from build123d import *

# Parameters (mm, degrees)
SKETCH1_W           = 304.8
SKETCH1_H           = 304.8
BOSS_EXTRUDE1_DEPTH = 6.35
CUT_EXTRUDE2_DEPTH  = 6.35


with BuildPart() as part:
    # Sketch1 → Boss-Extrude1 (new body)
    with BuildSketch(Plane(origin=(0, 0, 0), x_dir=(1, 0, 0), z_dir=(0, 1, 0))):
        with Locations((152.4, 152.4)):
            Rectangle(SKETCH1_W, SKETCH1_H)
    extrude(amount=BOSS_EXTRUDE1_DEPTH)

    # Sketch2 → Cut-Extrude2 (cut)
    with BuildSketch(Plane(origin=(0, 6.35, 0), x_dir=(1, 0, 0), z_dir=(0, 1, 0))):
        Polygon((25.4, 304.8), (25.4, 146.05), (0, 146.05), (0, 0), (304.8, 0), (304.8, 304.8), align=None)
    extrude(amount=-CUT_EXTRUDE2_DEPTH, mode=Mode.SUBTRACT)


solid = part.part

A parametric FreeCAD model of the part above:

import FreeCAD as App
import Part
import Sketcher
from FreeCAD import Vector
Q = App.Units.Quantity

doc = App.newDocument("Part")
body = doc.addObject("PartDesign::Body", "Body")

# Sketch on XZ plane
sketch1 = doc.addObject("Sketcher::SketchObject", "Sketch")
body.addObject(sketch1)
sketch1.AttachmentSupport = (doc.XZ_Plane, [""])
sketch1.MapMode = "FlatFace"
sketch1.addGeometry([
    Part.LineSegment(Vector(0, -305, 0), Vector(0, 0, 0)),
    Part.LineSegment(Vector(0, 0, 0), Vector(305, 0, 0)),
    Part.LineSegment(Vector(305, 0, 0), Vector(305, -305, 0)),
    Part.LineSegment(Vector(305, -305, 0), Vector(0, -305, 0)),
], False)
sketch1.addConstraint([
    Sketcher.Constraint("Coincident", 0, 2, 1, 1),
    Sketcher.Constraint("Coincident", 1, 2, 2, 1),
    Sketcher.Constraint("Coincident", 2, 2, 3, 1),
    Sketcher.Constraint("Coincident", 3, 2, 0, 1),
    Sketcher.Constraint("Vertical", 0),
    Sketcher.Constraint("Horizontal", 1),
    Sketcher.Constraint("Vertical", 2),
    Sketcher.Constraint("Horizontal", 3),
    Sketcher.Constraint("Coincident", 0, 2, -1, 1),
    Sketcher.Constraint("Equal", 3, 0),
    Sketcher.Constraint("DistanceX", 1, 1, 1, 2, Q("12 in")),
])
pad1 = doc.addObject("PartDesign::Pad", "Pad")
body.addObject(pad1)
pad1.Profile = sketch1
pad1.Length = Q("0.25 in")
pad1.Reversed = True

# Sketch on XZ plane
sketch2 = doc.addObject("Sketcher::SketchObject", "Sketch001")
body.addObject(sketch2)
sketch2.AttachmentSupport = (doc.XZ_Plane, [""])
sketch2.MapMode = "FlatFace"
sketch2.AttachmentOffset = App.Placement(Vector(0, 0, -0.25 * 25.4), App.Rotation())
sketch2.addGeometry([
    Part.LineSegment(Vector(25, -305, 0), Vector(25, -146, 0)),  # 0
    Part.LineSegment(Vector(25, -146, 0), Vector(0, -146, 0)),  # 1
    Part.LineSegment(Vector(0, -146, 0), Vector(0, 0, 0)),  # 2
    Part.LineSegment(Vector(0, 0, 0), Vector(305, 0, 0)),  # 3
    Part.LineSegment(Vector(305, 0, 0), Vector(305, -305, 0)),  # 4
    Part.LineSegment(Vector(305, -305, 0), Vector(25, -305, 0)),  # 5
], False)
sketch2.addConstraint([
    Sketcher.Constraint("Coincident", 0, 2, 1, 1),
    Sketcher.Constraint("Coincident", 1, 2, 2, 1),
    Sketcher.Constraint("Coincident", 2, 2, 3, 1),
    Sketcher.Constraint("Coincident", 3, 2, 4, 1),
    Sketcher.Constraint("Coincident", 4, 2, 5, 1),
    Sketcher.Constraint("Coincident", 5, 2, 0, 1),
    Sketcher.Constraint("Vertical", 0),
    Sketcher.Constraint("Horizontal", 1),
    Sketcher.Constraint("Vertical", 2),
    Sketcher.Constraint("Horizontal", 3),
    Sketcher.Constraint("Vertical", 4),
    Sketcher.Constraint("Horizontal", 5),
    Sketcher.Constraint("Coincident", 2, 2, -1, 1),
    Sketcher.Constraint("Equal", 3, 4),
    Sketcher.Constraint("DistanceX", 1, 2, 1, 1, Q("1 in")),
    Sketcher.Constraint("DistanceX", 3, 1, 3, 2, Q("12 in")),
    Sketcher.Constraint("DistanceY", 0, 1, 0, 2, Q("6.25 in")),
])
pocket1 = doc.addObject("PartDesign::Pocket", "Pocket")
body.addObject(pocket1)
pocket1.Profile = sketch2
pocket1.Length = Q("0.25 in")
pocket1.Reversed = True

doc.recompute()
